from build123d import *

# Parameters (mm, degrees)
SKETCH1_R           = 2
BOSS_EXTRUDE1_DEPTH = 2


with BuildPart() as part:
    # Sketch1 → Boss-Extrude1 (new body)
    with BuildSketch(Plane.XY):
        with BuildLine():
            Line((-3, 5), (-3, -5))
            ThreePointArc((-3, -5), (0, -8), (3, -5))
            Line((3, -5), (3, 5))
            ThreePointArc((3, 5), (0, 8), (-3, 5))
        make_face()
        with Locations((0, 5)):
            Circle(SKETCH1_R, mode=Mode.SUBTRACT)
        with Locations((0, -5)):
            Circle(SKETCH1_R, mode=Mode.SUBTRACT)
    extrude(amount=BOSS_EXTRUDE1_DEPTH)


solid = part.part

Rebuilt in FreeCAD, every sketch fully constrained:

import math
import FreeCAD as App
import Part
import Sketcher
Q = App.Units.Quantity

doc = App.newDocument("Part")
body = doc.addObject("PartDesign::Body", "Body")

# Sketch on XY plane
sketch1 = body.newObject("Sketcher::SketchObject", "Sketch")
sketch1.AttachmentSupport = (doc.getObject("XY_Plane"), [""])
sketch1.MapMode = "FlatFace"
sketch1.addGeometry(Part.LineSegment(App.Vector(-3, 5, 0), App.Vector(-3, -5, 0)), False)
sketch1.addGeometry(Part.ArcOfCircle(Part.Circle(App.Vector(0, -5, 0), App.Vector(0, 0, 1), 3), math.radians(180), math.radians(360)), False)
sketch1.addGeometry(Part.LineSegment(App.Vector(3, -5, 0), App.Vector(3, 5, 0)), False)
sketch1.addGeometry(Part.ArcOfCircle(Part.Circle(App.Vector(0, 5, 0), App.Vector(0, 0, 1), 3), math.radians(0), math.radians(180)), False)
sketch1.addGeometry(Part.Circle(App.Vector(0, -5, 0), App.Vector(0, 0, 1), 2), False)
sketch1.addGeometry(Part.Circle(App.Vector(0, 5, 0), App.Vector(0, 0, 1), 2), False)
sketch1.addConstraint(Sketcher.Constraint("Tangent", 0, 2, 1, 1))
sketch1.addConstraint(Sketcher.Constraint("Tangent", 1, 2, 2, 1))
sketch1.addConstraint(Sketcher.Constraint("Tangent", 2, 2, 3, 1))
sketch1.addConstraint(Sketcher.Constraint("Tangent", 3, 2, 0, 1))
sketch1.addConstraint(Sketcher.Constraint("Vertical", 0))
sketch1.addConstraint(Sketcher.Constraint("Vertical", 2))
sketch1.addConstraint(Sketcher.Constraint("Coincident", 4, 3, 1, 3))
sketch1.addConstraint(Sketcher.Constraint("Coincident", 5, 3, 3, 3))
sketch1.addConstraint(Sketcher.Constraint("Equal", 4, 5))
sketch1.addConstraint(Sketcher.Constraint("Symmetric", 1, 3, 3, 3, -1, 1))
sketch1.addConstraint(Sketcher.Constraint("Diameter", 4, Q("4 mm")))
sketch1.addConstraint(Sketcher.Constraint("Radius", 1, Q("3 mm")))
sketch1.addConstraint(Sketcher.Constraint("DistanceY", 0, 2, 0, 1, Q("10 mm")))
pad1 = body.newObject("PartDesign::Pad", "Pad")
pad1.Profile = sketch1
pad1.Length = 2

doc.recompute()
